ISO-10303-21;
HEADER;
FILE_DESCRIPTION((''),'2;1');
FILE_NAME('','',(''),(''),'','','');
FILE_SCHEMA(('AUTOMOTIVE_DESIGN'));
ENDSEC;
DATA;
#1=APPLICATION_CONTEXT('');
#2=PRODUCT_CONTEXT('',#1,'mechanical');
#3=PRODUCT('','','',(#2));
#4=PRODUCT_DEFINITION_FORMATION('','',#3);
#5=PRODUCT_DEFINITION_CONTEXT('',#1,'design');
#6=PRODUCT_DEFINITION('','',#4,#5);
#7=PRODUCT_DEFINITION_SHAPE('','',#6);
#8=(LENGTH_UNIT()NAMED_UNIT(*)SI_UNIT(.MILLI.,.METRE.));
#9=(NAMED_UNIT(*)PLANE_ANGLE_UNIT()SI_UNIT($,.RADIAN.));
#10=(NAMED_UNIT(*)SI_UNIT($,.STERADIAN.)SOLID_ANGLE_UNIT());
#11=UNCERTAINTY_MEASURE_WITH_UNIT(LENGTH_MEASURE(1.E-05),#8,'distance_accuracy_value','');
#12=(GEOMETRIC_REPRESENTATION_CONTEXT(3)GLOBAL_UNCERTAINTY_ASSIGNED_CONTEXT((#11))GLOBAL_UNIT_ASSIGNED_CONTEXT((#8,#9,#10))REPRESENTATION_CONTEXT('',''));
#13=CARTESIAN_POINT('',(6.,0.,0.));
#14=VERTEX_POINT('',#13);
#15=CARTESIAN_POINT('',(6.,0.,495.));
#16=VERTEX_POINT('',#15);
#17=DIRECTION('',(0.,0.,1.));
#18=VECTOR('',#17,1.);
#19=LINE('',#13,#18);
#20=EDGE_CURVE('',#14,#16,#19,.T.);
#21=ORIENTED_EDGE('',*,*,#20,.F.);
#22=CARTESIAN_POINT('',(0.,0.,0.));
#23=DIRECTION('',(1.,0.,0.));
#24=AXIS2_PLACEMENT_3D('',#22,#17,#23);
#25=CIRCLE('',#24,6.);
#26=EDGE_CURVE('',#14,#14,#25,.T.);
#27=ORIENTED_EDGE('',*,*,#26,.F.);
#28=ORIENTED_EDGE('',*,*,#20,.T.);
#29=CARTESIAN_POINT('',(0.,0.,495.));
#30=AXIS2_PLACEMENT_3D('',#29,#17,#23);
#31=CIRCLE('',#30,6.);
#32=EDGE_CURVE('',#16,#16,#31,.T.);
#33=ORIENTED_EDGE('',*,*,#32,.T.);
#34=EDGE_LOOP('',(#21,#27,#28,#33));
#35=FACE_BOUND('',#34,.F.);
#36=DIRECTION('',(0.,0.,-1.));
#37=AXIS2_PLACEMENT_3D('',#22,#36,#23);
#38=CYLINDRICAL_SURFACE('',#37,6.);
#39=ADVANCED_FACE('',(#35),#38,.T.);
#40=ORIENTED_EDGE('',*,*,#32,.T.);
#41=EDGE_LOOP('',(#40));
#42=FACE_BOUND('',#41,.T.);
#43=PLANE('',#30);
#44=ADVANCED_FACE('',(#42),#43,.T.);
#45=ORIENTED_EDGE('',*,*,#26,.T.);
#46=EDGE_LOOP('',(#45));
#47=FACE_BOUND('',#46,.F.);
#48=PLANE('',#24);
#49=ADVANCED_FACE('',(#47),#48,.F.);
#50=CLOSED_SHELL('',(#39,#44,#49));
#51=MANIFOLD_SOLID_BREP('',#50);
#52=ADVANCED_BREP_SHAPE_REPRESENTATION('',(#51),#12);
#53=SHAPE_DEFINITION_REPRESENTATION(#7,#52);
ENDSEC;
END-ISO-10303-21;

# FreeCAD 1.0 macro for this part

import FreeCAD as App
import Part
import Sketcher
Q = App.Units.Quantity

doc = App.newDocument("Part")
params = doc.addObject("Spreadsheet::Sheet", "Params")
for row, (alias, value) in enumerate([
    ("sketch1_diameter", "12 mm"),
    ("pad1_length", "495 mm"),
], start=1):
    params.set(f"A{row}", alias)
    params.set(f"B{row}", "=" + value)
    params.setAlias(f"B{row}", alias)

body = doc.addObject("PartDesign::Body", "Body")

# Sketch on XY plane
sketch1 = doc.addObject("Sketcher::SketchObject", "Sketch")
body.addObject(sketch1)
sketch1.AttachmentSupport = (doc.XY_Plane, [""])
sketch1.MapMode = "FlatFace"
sketch1.addGeometry(Part.Circle(App.Vector(0, 0, 0), App.Vector(0, 0, 1), 6), False)
sketch1.addConstraint([
    Sketcher.Constraint("Coincident", 0, 3, -1, 1),
    Sketcher.Constraint("Diameter", 0, Q("12 mm")),
])
sketch1.setExpression("Constraints[1]", "Params.sketch1_diameter")
pad1 = doc.addObject("PartDesign::Pad", "Pad")
body.addObject(pad1)
pad1.Profile = sketch1
pad1.setExpression("Length", "Params.pad1_length")

doc.recompute()
